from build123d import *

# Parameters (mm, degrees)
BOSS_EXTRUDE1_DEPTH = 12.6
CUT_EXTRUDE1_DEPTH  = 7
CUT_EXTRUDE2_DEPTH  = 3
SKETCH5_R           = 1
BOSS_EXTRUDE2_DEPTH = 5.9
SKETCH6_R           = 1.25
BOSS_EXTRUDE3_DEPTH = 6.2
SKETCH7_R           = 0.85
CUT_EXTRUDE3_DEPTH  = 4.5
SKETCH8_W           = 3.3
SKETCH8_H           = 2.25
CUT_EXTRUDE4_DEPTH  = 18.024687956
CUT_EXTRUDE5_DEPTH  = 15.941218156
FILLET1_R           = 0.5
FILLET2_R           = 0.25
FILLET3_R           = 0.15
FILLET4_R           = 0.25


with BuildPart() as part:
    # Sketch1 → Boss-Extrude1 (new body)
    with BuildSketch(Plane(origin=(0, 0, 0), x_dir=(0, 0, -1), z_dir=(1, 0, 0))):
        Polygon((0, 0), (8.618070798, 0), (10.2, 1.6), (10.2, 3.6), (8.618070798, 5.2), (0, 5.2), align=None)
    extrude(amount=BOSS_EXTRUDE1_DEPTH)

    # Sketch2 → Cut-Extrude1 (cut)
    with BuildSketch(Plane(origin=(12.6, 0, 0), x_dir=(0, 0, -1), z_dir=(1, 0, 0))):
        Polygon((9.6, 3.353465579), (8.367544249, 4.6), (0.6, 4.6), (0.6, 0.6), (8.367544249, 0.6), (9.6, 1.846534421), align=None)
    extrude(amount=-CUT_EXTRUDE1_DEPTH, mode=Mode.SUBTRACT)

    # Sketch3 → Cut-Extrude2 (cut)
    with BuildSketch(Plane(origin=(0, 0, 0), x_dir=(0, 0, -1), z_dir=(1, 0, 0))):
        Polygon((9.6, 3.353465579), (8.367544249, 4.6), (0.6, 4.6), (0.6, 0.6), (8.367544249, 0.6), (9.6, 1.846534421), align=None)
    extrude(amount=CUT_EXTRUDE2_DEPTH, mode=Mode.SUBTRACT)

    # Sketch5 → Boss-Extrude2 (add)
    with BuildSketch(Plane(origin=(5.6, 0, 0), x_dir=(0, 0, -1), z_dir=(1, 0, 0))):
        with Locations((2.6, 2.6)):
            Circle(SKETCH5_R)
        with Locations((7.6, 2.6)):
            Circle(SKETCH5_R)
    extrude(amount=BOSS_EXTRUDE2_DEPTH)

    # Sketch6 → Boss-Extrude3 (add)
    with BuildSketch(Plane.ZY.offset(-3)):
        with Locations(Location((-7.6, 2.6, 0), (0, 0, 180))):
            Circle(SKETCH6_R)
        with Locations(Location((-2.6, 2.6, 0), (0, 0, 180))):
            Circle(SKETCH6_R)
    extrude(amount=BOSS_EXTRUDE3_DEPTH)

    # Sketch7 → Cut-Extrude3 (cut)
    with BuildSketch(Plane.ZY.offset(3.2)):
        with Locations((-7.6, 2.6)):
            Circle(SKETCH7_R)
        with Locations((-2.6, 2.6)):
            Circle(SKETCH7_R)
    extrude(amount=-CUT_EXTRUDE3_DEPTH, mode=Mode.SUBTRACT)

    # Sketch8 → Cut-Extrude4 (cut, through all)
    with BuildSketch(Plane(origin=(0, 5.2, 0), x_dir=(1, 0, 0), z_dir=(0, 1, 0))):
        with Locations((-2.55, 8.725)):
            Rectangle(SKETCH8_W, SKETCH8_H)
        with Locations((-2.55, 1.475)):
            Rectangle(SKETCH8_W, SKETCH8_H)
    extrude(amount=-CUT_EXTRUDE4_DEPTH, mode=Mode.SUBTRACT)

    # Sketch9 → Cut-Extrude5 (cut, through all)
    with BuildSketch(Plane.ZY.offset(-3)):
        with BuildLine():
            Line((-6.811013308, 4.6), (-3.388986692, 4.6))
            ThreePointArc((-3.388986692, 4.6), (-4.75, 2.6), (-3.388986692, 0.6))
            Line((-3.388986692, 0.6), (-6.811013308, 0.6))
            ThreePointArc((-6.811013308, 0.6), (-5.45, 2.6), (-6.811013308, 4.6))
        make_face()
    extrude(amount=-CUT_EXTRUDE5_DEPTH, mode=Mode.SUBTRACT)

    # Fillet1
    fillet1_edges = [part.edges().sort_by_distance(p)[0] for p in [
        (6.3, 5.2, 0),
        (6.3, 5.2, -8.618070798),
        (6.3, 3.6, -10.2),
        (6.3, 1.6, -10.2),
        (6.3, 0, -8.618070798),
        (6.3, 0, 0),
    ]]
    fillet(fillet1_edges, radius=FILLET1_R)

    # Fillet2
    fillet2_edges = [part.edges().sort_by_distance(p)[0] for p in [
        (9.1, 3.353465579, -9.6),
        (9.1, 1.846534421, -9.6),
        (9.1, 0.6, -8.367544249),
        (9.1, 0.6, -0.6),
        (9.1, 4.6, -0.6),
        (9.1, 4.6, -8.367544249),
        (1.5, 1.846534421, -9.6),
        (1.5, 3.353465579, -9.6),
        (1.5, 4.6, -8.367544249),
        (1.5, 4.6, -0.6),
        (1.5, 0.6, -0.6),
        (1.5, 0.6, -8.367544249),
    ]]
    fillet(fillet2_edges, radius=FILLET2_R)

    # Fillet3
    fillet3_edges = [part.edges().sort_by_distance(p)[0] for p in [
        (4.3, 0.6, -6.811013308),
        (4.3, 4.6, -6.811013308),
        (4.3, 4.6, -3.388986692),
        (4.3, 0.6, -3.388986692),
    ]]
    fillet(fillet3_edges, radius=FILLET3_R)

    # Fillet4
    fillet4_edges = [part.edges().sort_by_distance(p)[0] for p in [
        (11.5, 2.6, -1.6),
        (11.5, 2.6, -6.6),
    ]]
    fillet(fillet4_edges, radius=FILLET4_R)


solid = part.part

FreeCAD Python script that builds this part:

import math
import FreeCAD as App
import Part
import Sketcher
from FreeCAD import Vector


def edges_at(feature, points):
    """Names of the edges that pass closest to the given points."""
    edges = feature.Shape.Edges
    near = lambda p: min(range(len(edges)), key=lambda i: edges[i].distToShape(Part.Vertex(*p))[0])
    return sorted({f"Edge{near(p) + 1}" for p in points})

doc = App.newDocument("Part")
body = doc.addObject("PartDesign::Body", "Body")

# Sketch on YZ plane
sketch1 = body.newObject("Sketcher::SketchObject", "Sketch")
sketch1.AttachmentSupport = (doc.getObject("YZ_Plane"), [""])
sketch1.MapMode = "FlatFace"
sketch1.addGeometry([
    Part.LineSegment(Vector(0, 0, 0), Vector(0, -8.6, 0)),  # 0
    Part.LineSegment(Vector(0, -8.6, 0), Vector(1.6, -10.2, 0)),  # 1
    Part.LineSegment(Vector(1.6, -10.2, 0), Vector(3.6, -10.2, 0)),  # 2
    Part.LineSegment(Vector(3.6, -10.2, 0), Vector(5.2, -8.6, 0)),  # 3
    Part.LineSegment(Vector(5.2, -8.6, 0), Vector(5.2, 0, 0)),  # 4
    Part.LineSegment(Vector(5.2, 0, 0), Vector(0, 0, 0)),  # 5
], False)
sketch1.addConstraint([
    Sketcher.Constraint("Coincident", 0, 2, 1, 1),
    Sketcher.Constraint("Coincident", 1, 2, 2, 1),
    Sketcher.Constraint("Coincident", 2, 2, 3, 1),
    Sketcher.Constraint("Coincident", 3, 2, 4, 1),
    Sketcher.Constraint("Coincident", 4, 2, 5, 1),
    Sketcher.Constraint("Coincident", 5, 2, 0, 1),
    Sketcher.Constraint("Vertical", 0),
    Sketcher.Constraint("Horizontal", 2),
    Sketcher.Constraint("Vertical", 4),
    Sketcher.Constraint("Horizontal", 5),
    Sketcher.Constraint("Coincident", 5, 2, -1, 1),
    Sketcher.Constraint("Horizontal", 0, 2, 3, 2),
    Sketcher.Constraint("Equal", 1, 3),
    Sketcher.Constraint("DistanceX", 2, 1, 2, 2, 2.0),
    Sketcher.Constraint("DistanceX", 5, 2, 5, 1, 5.2),
    Sketcher.Constraint("DistanceY", 1, 2, -1, 1, 10.2),
    Sketcher.Constraint("Distance", 1, 2.25),
])
pad1 = body.newObject("PartDesign::Pad", "Pad")
pad1.Profile = sketch1
pad1.Length = 12.6

# Sketch on YZ plane
sketch2 = body.newObject("Sketcher::SketchObject", "Sketch001")
sketch2.AttachmentSupport = (doc.getObject("YZ_Plane"), [""])
sketch2.MapMode = "FlatFace"
sketch2.AttachmentOffset = App.Placement(Vector(0, 0, 12.6), App.Rotation())
sketch2.addGeometry([
    Part.LineSegment(Vector(3.4, -9.6, 0), Vector(4.6, -8.4, 0)),  # 0
    Part.LineSegment(Vector(4.6, -8.4, 0), Vector(4.6, -0.6, 0)),  # 1
    Part.LineSegment(Vector(4.6, -0.6, 0), Vector(0.6, -0.6, 0)),  # 2
    Part.LineSegment(Vector(0.6, -0.6, 0), Vector(0.6, -8.4, 0)),  # 3
    Part.LineSegment(Vector(0.6, -8.4, 0), Vector(1.8, -9.6, 0)),  # 4
    Part.LineSegment(Vector(1.8, -9.6, 0), Vector(3.4, -9.6, 0)),  # 5
], False)
sketch2.addConstraint([
    Sketcher.Constraint("Coincident", 0, 2, 1, 1),
    Sketcher.Constraint("Coincident", 1, 2, 2, 1),
    Sketcher.Constraint("Coincident", 2, 2, 3, 1),
    Sketcher.Constraint("Coincident", 3, 2, 4, 1),
    Sketcher.Constraint("Coincident", 4, 2, 5, 1),
    Sketcher.Constraint("Coincident", 5, 2, 0, 1),
    Sketcher.Constraint("Vertical", 1),
    Sketcher.Constraint("Horizontal", 2),
    Sketcher.Constraint("Vertical", 3),
    Sketcher.Constraint("Horizontal", 5),
    Sketcher.Constraint("Horizontal", 0, 2, 3, 2),
    Sketcher.Constraint("Equal", 0, 4),
    Sketcher.Constraint("DistanceX", 2, 2, 2, 1, 4.0),
    Sketcher.Constraint("DistanceY", 4, 2, 2, 2, 9.0),
    Sketcher.Constraint("DistanceX", -1, 1, 0, 2, 4.6),
    Sketcher.Constraint("DistanceY", 1, 2, -1, 1, 0.6),
    Sketcher.Constraint("DistanceX", 5, 1, 5, 2, 1.506931),
    Sketcher.Constraint("Distance", 0, 1.752939),
])
pocket1 = body.newObject("PartDesign::Pocket", "Pocket")
pocket1.Profile = sketch2
pocket1.Length = 7

# Sketch on YZ plane
sketch3 = body.newObject("Sketcher::SketchObject", "Sketch002")
sketch3.AttachmentSupport = (doc.getObject("YZ_Plane"), [""])
sketch3.MapMode = "FlatFace"
sketch3.addGeometry([
    Part.LineSegment(Vector(3.4, -9.6, 0), Vector(4.6, -8.4, 0)),  # 0
    Part.LineSegment(Vector(4.6, -8.4, 0), Vector(4.6, -0.6, 0)),  # 1
    Part.LineSegment(Vector(4.6, -0.6, 0), Vector(0.6, -0.6, 0)),  # 2
    Part.LineSegment(Vector(0.6, -0.6, 0), Vector(0.6, -8.4, 0)),  # 3
    Part.LineSegment(Vector(0.6, -8.4, 0), Vector(1.8, -9.6, 0)),  # 4
    Part.LineSegment(Vector(1.8, -9.6, 0), Vector(3.4, -9.6, 0)),  # 5
], False)
sketch3.addConstraint([
    Sketcher.Constraint("Coincident", 0, 2, 1, 1),
    Sketcher.Constraint("Coincident", 1, 2, 2, 1),
    Sketcher.Constraint("Coincident", 2, 2, 3, 1),
    Sketcher.Constraint("Coincident", 3, 2, 4, 1),
    Sketcher.Constraint("Coincident", 4, 2, 5, 1),
    Sketcher.Constraint("Coincident", 5, 2, 0, 1),
    Sketcher.Constraint("Vertical", 1),
    Sketcher.Constraint("Horizontal", 2),
    Sketcher.Constraint("Vertical", 3),
    Sketcher.Constraint("Horizontal", 5),
    Sketcher.Constraint("Horizontal", 0, 2, 3, 2),
    Sketcher.Constraint("Equal", 0, 4),
    Sketcher.Constraint("DistanceX", 2, 2, 2, 1, 4.0),
    Sketcher.Constraint("DistanceY", 4, 2, 2, 2, 9.0),
    Sketcher.Constraint("DistanceX", -1, 1, 0, 2, 4.6),
    Sketcher.Constraint("DistanceY", 1, 2, -1, 1, 0.6),
    Sketcher.Constraint("DistanceX", 5, 1, 5, 2, 1.506931),
    Sketcher.Constraint("Distance", 0, 1.752939),
])
pocket2 = body.newObject("PartDesign::Pocket", "Pocket001")
pocket2.Profile = sketch3
pocket2.Length = 3
pocket2.Reversed = True

# Sketch on YZ plane
sketch4 = body.newObject("Sketcher::SketchObject", "Sketch003")
sketch4.AttachmentSupport = (doc.getObject("YZ_Plane"), [""])
sketch4.MapMode = "FlatFace"
sketch4.AttachmentOffset = App.Placement(Vector(0, 0, 5.6), App.Rotation())
sketch4.addGeometry([
    Part.Circle(Vector(2.6, -2.6, 0), Vector(0, 0, 1), 1),
    Part.Circle(Vector(2.6, -7.6, 0), Vector(0, 0, 1), 1),
], False)
sketch4.addConstraint([
    Sketcher.Constraint("Equal", 0, 1),
    Sketcher.Constraint("Vertical", 0, 3, 1, 3),
    Sketcher.Constraint("Diameter", 0, 2.0),
    Sketcher.Constraint("DistanceY", 1, 3, 0, 3, 5.0),
    Sketcher.Constraint("DistanceX", -1, 1, 0, 3, 2.6),
    Sketcher.Constraint("DistanceY", 0, 3, -1, 1, 2.6),
])
pad2 = body.newObject("PartDesign::Pad", "Pad001")
pad2.Profile = sketch4
pad2.Length = 5.9

# Sketch on YZ plane
sketch5 = body.newObject("Sketcher::SketchObject", "Sketch004")
sketch5.AttachmentSupport = (doc.getObject("YZ_Plane"), [""])
sketch5.MapMode = "FlatFace"
sketch5.AttachmentOffset = App.Placement(Vector(0, 0, 3), App.Rotation())
sketch5.addGeometry([
    Part.Circle(Vector(2.6, -7.6, 0), Vector(0, 0, 1), 1.2),
    Part.Circle(Vector(2.6, -2.6, 0), Vector(0, 0, 1), 1.2),
], False)
sketch5.addConstraint([
    Sketcher.Constraint("Equal", 0, 1),
    Sketcher.Constraint("Vertical", 0, 3, 1, 3),
    Sketcher.Constraint("Diameter", 0, 2.5),
    Sketcher.Constraint("DistanceY", 0, 3, 1, 3, 5.0),
    Sketcher.Constraint("DistanceX", -1, 1, 0, 3, 2.6),
    Sketcher.Constraint("DistanceY", 0, 3, -1, 1, 7.6),
])
pad3 = body.newObject("PartDesign::Pad", "Pad002")
pad3.Profile = sketch5
pad3.Length = 6.2
pad3.Reversed = True

# Sketch on YZ plane
sketch6 = body.newObject("Sketcher::SketchObject", "Sketch005")
sketch6.AttachmentSupport = (doc.getObject("YZ_Plane"), [""])
sketch6.MapMode = "FlatFace"
sketch6.AttachmentOffset = App.Placement(Vector(0, 0, -3.2), App.Rotation())
sketch6.addGeometry([
    Part.Circle(Vector(2.6, -7.6, 0), Vector(0, 0, 1), 0.8),
    Part.Circle(Vector(2.6, -2.6, 0), Vector(0, 0, 1), 0.8),
], False)
sketch6.addConstraint([
    Sketcher.Constraint("Equal", 0, 1),
    Sketcher.Constraint("Vertical", 0, 3, 1, 3),
    Sketcher.Constraint("Diameter", 0, 1.7),
    Sketcher.Constraint("DistanceY", 0, 3, 1, 3, 5.0),
    Sketcher.Constraint("DistanceX", -1, 1, 0, 3, 2.6),
    Sketcher.Constraint("DistanceY", 0, 3, -1, 1, 7.6),
])
pocket3 = body.newObject("PartDesign::Pocket", "Pocket002")
pocket3.Profile = sketch6
pocket3.Length = 4.5
pocket3.Reversed = True

# Sketch on XZ plane
sketch7 = body.newObject("Sketcher::SketchObject", "Sketch006")
sketch7.AttachmentSupport = (doc.getObject("XZ_Plane"), [""])
sketch7.MapMode = "FlatFace"
sketch7.AttachmentOffset = App.Placement(Vector(0, 0, -5.2), App.Rotation())
sketch7.addGeometry([
    Part.LineSegment(Vector(-4.2, -9.8, 0), Vector(-4.2, -7.6, 0)),  # 0
    Part.LineSegment(Vector(-4.2, -7.6, 0), Vector(-0.9, -7.6, 0)),  # 1
    Part.LineSegment(Vector(-0.9, -7.6, 0), Vector(-0.9, -9.8, 0)),  # 2
    Part.LineSegment(Vector(-0.9, -9.8, 0), Vector(-4.2, -9.8, 0)),  # 3
    Part.LineSegment(Vector(-4.2, -2.6, 0), Vector(-4.2, -0.3, 0)),  # 4
    Part.LineSegment(Vector(-4.2, -0.3, 0), Vector(-0.9, -0.3, 0)),  # 5
    Part.LineSegment(Vector(-0.9, -0.3, 0), Vector(-0.9, -2.6, 0)),  # 6
    Part.LineSegment(Vector(-0.9, -2.6, 0), Vector(-4.2, -2.6, 0)),  # 7
], False)
sketch7.addConstraint([
    Sketcher.Constraint("Coincident", 0, 2, 1, 1),
    Sketcher.Constraint("Coincident", 1, 2, 2, 1),
    Sketcher.Constraint("Coincident", 2, 2, 3, 1),
    Sketcher.Constraint("Coincident", 3, 2, 0, 1),
    Sketcher.Constraint("Coincident", 4, 2, 5, 1),
    Sketcher.Constraint("Coincident", 5, 2, 6, 1),
    Sketcher.Constraint("Coincident", 6, 2, 7, 1),
    Sketcher.Constraint("Coincident", 7, 2, 4, 1),
    Sketcher.Constraint("Vertical", 0),
    Sketcher.Constraint("Horizontal", 1),
    Sketcher.Constraint("Vertical", 2),
    Sketcher.Constraint("Horizontal", 3),
    Sketcher.Constraint("Vertical", 4),
    Sketcher.Constraint("Horizontal", 5),
    Sketcher.Constraint("Vertical", 6),
    Sketcher.Constraint("Horizontal", 7),
    Sketcher.Constraint("Vertical", 3, 2, 4, 2),
    Sketcher.Constraint("Vertical", 2, 2, 5, 2),
    Sketcher.Constraint("Equal", 2, 4),
    Sketcher.Constraint("DistanceX", 1, 1, 1, 2, 3.3),
    Sketcher.Constraint("DistanceY", 1, 2, 6, 2, 5.0),
    Sketcher.Constraint("DistanceY", 0, 1, 0, 2, 2.25),
    Sketcher.Constraint("DistanceX", 0, 2, -1, 1, 4.2),
    Sketcher.Constraint("DistanceY", 0, 2, -1, 1, 7.6),
])
pocket4 = body.newObject("PartDesign::Pocket", "Pocket003")
pocket4.Profile = sketch7
pocket4.Type = "ThroughAll"
pocket4.Reversed = True

# Sketch on YZ plane
sketch8 = body.newObject("Sketcher::SketchObject", "Sketch007")
sketch8.AttachmentSupport = (doc.getObject("YZ_Plane"), [""])
sketch8.MapMode = "FlatFace"
sketch8.AttachmentOffset = App.Placement(Vector(0, 0, 3), App.Rotation())
sketch8.addGeometry([
    Part.LineSegment(Vector(4.6, -3.4, 0), Vector(4.6, -6.8, 0)),
    Part.ArcOfCircle(Part.Circle(Vector(2.6, -7.6, 0), Vector(0, 0, 1), 2.1), math.radians(22), math.radians(158)),
    Part.LineSegment(Vector(0.6, -6.8, 0), Vector(0.6, -3.4, 0)),
    Part.ArcOfCircle(Part.Circle(Vector(2.6, -2.6, 0), Vector(0, 0, 1), 2.1), math.radians(-158), math.radians(-22)),
], False)
sketch8.addConstraint([
    Sketcher.Constraint("Coincident", 0, 2, 1, 1),
    Sketcher.Constraint("Coincident", 1, 2, 2, 1),
    Sketcher.Constraint("Coincident", 2, 2, 3, 1),
    Sketcher.Constraint("Coincident", 3, 2, 0, 1),
    Sketcher.Constraint("Vertical", 0),
    Sketcher.Constraint("Vertical", 2),
    Sketcher.Constraint("Equal", 1, 3),
    Sketcher.Constraint("Horizontal", 0, 2, 1, 2),
    Sketcher.Constraint("Horizontal", 2, 2, 3, 2),
    Sketcher.Constraint("Radius", 1, 2.15),
    Sketcher.Constraint("DistanceY", 1, 3, 3, 3, 5.0),
    Sketcher.Constraint("DistanceX", 1, 3, 0, 2, 2.0),
    Sketcher.Constraint("DistanceX", -1, 1, 1, 3, 2.6),
    Sketcher.Constraint("DistanceY", 1, 3, -1, 1, 7.6),
])
pocket5 = body.newObject("PartDesign::Pocket", "Pocket004")
pocket5.Profile = sketch8
pocket5.Type = "ThroughAll"
pocket5.Reversed = True
doc.recompute()

fillet = body.newObject("PartDesign::Fillet", "Fillet")
fillet.Base = (pocket5, edges_at(pocket5, [
    (6.3, 5.2, 0),
    (6.3, 5.2, -8.618),
    (6.3, 3.6, -10.2),
    (6.3, 1.6, -10.2),
    (6.3, 0, -8.618),
    (6.3, 0, 0),
]))
fillet.Radius = 0.5
doc.recompute()

fillet2 = body.newObject("PartDesign::Fillet", "Fillet001")
fillet2.Base = (fillet, edges_at(fillet, [
    (9.1, 3.353, -9.6),
    (9.1, 1.847, -9.6),
    (9.1, 0.6, -8.368),
    (9.1, 0.6, -0.6),
    (9.1, 4.6, -0.6),
    (9.1, 4.6, -8.368),
    (1.5, 1.847, -9.6),
    (1.5, 3.353, -9.6),
    (1.5, 4.6, -8.368),
    (1.5, 4.6, -0.6),
    (1.5, 0.6, -0.6),
    (1.5, 0.6, -8.368),
]))
fillet2.Radius = 0.25
doc.recompute()

fillet3 = body.newObject("PartDesign::Fillet", "Fillet002")
fillet3.Base = (fillet2, edges_at(fillet2, [
    (4.3, 0.6, -6.811),
    (4.3, 4.6, -6.811),
    (4.3, 4.6, -3.389),
    (4.3, 0.6, -3.389),
]))
fillet3.Radius = 0.15
doc.recompute()

fillet4 = body.newObject("PartDesign::Fillet", "Fillet003")
fillet4.Base = (fillet3, edges_at(fillet3, [(11.5, 2.6, -1.6), (11.5, 2.6, -6.6)]))
fillet4.Radius = 0.25

doc.recompute()
